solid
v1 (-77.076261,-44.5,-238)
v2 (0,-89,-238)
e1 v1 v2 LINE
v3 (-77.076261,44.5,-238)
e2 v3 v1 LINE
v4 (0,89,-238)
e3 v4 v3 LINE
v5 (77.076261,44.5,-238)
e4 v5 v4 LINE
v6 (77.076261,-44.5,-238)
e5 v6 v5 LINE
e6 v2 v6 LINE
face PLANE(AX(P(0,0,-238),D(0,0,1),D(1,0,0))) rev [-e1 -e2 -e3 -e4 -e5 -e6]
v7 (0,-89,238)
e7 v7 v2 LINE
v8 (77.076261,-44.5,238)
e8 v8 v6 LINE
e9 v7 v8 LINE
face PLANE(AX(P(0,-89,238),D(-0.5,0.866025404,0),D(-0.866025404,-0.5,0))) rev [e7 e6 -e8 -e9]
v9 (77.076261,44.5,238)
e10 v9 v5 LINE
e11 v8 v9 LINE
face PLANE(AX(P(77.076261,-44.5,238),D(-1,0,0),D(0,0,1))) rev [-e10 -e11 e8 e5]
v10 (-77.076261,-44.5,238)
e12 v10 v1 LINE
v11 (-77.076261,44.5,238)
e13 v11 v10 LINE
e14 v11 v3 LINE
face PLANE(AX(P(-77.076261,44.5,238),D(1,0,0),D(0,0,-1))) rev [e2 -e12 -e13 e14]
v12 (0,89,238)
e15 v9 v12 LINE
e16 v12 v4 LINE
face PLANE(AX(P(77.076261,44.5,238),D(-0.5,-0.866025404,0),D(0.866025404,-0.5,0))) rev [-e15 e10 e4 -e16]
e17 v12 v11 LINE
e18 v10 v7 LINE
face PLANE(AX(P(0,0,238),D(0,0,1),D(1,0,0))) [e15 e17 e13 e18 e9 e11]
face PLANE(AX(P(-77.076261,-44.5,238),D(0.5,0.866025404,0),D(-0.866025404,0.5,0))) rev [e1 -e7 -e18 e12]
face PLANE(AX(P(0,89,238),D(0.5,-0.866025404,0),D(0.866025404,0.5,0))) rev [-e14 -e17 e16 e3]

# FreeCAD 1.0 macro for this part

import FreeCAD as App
import Part
import Sketcher
from FreeCAD import Vector
Q = App.Units.Quantity

doc = App.newDocument("Part")
params = doc.addObject("Spreadsheet::Sheet", "Params")
for row, (alias, value) in enumerate([
    ("sketch1_height", "89 mm"),
    ("sketch1_length", "89 mm"),
    ("pad1_length", "476 mm"),
], start=1):
    params.set(f"A{row}", alias)
    params.set(f"B{row}", "=" + value)
    params.setAlias(f"B{row}", alias)

body = doc.addObject("PartDesign::Body", "Body")

# Sketch on XY plane
sketch1 = doc.addObject("Sketcher::SketchObject", "Sketch")
body.addObject(sketch1)
sketch1.AttachmentSupport = (doc.XY_Plane, [""])
sketch1.MapMode = "FlatFace"
sketch1.addGeometry(Part.LineSegment(Vector(0, 89, 0), Vector(-77, 44, 0)), False)
sketch1.addGeometry(Part.LineSegment(Vector(-77, 44, 0), Vector(-77, -44, 0)), False)
sketch1.addGeometry(Part.LineSegment(Vector(-77, -44, 0), Vector(0, -89, 0)), False)
sketch1.addGeometry(Part.LineSegment(Vector(0, -89, 0), Vector(77, -44, 0)), False)
sketch1.addGeometry(Part.LineSegment(Vector(77, -44, 0), Vector(77, 44, 0)), False)
sketch1.addGeometry(Part.LineSegment(Vector(77, 44, 0), Vector(0, 89, 0)), False)
sketch1.addConstraint(Sketcher.Constraint("Coincident", 0, 2, 1, 1))
sketch1.addConstraint(Sketcher.Constraint("Coincident", 1, 2, 2, 1))
sketch1.addConstraint(Sketcher.Constraint("Coincident", 2, 2, 3, 1))
sketch1.addConstraint(Sketcher.Constraint("Coincident", 3, 2, 4, 1))
sketch1.addConstraint(Sketcher.Constraint("Coincident", 4, 2, 5, 1))
sketch1.addConstraint(Sketcher.Constraint("Coincident", 5, 2, 0, 1))
sketch1.addConstraint(Sketcher.Constraint("Vertical", 1))
sketch1.addConstraint(Sketcher.Constraint("Vertical", 4))
sketch1.addConstraint(Sketcher.Constraint("Symmetric", 0, 2, 3, 2, -1, 1))
sketch1.addConstraint(Sketcher.Constraint("Symmetric", 2, 2, 5, 2, -1, 1))
sketch1.addConstraint(Sketcher.Constraint("PointOnObject", 2, 2, -2))
sketch1.addConstraint(Sketcher.Constraint("Parallel", 2, 5))
sketch1.addConstraint(Sketcher.Constraint("Horizontal", 1, 2, 3, 2))
sketch1.addConstraint(Sketcher.Constraint("DistanceY", 1, 2, 1, 1, 89.0))
sketch1.addConstraint(Sketcher.Constraint("Angle", 0, Q("-150 deg")))
sketch1.addConstraint(Sketcher.Constraint("Distance", 0, 89.0))
sketch1.setExpression("Constraints[13]", "Params.sketch1_height")
sketch1.setExpression("Constraints[15]", "Params.sketch1_length")
pad1 = doc.addObject("PartDesign::Pad", "Pad")
body.addObject(pad1)
pad1.Profile = sketch1
pad1.setExpression("Length", "Params.pad1_length")
pad1.Midplane = True

doc.recompute()
